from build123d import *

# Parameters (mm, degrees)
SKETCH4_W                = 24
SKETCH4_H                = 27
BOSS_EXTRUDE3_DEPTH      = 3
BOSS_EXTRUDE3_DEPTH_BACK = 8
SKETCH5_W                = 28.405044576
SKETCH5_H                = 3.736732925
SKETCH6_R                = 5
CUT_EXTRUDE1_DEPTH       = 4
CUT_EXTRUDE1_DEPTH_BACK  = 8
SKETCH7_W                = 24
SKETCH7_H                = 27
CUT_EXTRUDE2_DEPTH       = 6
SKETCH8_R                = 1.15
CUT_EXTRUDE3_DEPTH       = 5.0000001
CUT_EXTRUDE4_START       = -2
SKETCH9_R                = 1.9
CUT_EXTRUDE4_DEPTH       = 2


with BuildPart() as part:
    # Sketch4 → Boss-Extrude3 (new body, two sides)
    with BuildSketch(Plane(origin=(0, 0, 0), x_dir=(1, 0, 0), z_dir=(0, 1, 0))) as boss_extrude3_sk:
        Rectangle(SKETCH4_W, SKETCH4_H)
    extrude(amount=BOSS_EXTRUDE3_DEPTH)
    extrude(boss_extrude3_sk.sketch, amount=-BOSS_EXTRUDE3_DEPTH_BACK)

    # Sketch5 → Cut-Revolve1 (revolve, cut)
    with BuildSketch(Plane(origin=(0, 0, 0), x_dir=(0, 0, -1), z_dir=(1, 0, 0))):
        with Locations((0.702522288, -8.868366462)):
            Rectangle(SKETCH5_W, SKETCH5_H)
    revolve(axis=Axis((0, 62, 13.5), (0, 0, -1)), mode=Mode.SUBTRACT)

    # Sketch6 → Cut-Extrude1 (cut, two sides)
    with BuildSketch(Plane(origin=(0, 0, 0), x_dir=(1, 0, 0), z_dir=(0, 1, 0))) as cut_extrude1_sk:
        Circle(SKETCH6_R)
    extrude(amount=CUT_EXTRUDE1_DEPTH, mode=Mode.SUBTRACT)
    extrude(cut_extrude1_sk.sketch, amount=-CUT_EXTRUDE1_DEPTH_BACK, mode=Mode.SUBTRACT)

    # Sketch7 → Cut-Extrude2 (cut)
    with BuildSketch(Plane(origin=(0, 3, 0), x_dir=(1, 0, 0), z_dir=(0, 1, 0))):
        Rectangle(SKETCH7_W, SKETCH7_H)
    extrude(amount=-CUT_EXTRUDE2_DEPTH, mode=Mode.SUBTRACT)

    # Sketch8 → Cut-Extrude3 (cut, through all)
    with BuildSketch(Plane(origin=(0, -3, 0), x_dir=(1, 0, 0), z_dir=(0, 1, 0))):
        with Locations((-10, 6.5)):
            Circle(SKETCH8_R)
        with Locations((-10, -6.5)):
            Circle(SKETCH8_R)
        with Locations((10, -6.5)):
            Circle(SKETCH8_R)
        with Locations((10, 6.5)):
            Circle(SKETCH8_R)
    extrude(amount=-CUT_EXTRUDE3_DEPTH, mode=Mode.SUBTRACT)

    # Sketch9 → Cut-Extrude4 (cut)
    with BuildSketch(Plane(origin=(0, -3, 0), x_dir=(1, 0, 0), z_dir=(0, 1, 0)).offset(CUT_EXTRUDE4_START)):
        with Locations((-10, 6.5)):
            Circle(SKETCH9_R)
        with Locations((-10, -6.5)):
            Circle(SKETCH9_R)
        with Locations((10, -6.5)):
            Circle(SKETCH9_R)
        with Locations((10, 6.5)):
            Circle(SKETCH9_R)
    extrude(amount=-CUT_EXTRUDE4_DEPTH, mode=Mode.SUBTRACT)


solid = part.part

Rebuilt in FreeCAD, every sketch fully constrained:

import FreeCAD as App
import Part
import Sketcher

doc = App.newDocument("Part")
body = doc.addObject("PartDesign::Body", "Body")

# Sketch on XZ plane
sketch1 = body.newObject("Sketcher::SketchObject", "Sketch")
sketch1.AttachmentSupport = (doc.getObject("XZ_Plane"), [""])
sketch1.MapMode = "FlatFace"
sketch1.addGeometry([
    Part.LineSegment(App.Vector(-12, -14, 0), App.Vector(-12, 14, 0)),
    Part.LineSegment(App.Vector(-12, 14, 0), App.Vector(12, 14, 0)),
    Part.LineSegment(App.Vector(12, 14, 0), App.Vector(12, -14, 0)),
    Part.LineSegment(App.Vector(12, -14, 0), App.Vector(-12, -14, 0)),
], False)
sketch1.addConstraint([
    Sketcher.Constraint("Coincident", 0, 2, 1, 1),
    Sketcher.Constraint("Coincident", 1, 2, 2, 1),
    Sketcher.Constraint("Coincident", 2, 2, 3, 1),
    Sketcher.Constraint("Coincident", 3, 2, 0, 1),
    Sketcher.Constraint("Vertical", 0),
    Sketcher.Constraint("Horizontal", 1),
    Sketcher.Constraint("Vertical", 2),
    Sketcher.Constraint("Horizontal", 3),
    Sketcher.Constraint("Symmetric", 0, 2, 2, 2, -1, 1),
    Sketcher.Constraint("DistanceX", 1, 1, 1, 2, 24.0),
    Sketcher.Constraint("DistanceY", 0, 1, 0, 2, 27.0),
])
pad1 = body.newObject("PartDesign::Pad", "Pad")
pad1.Profile = sketch1
pad1.Type = "TwoLengths"
pad1.Length = 3
pad1.Length2 = 8
pad1.Reversed = True

# Sketch on YZ plane
sketch2 = body.newObject("Sketcher::SketchObject", "Sketch001")
sketch2.AttachmentSupport = (doc.getObject("YZ_Plane"), [""])
sketch2.MapMode = "FlatFace"
sketch2.addGeometry([
    Part.LineSegment(App.Vector(-7, 13.5, 0), App.Vector(-10.7, 13.5, 0)),
    Part.LineSegment(App.Vector(-10.7, 13.5, 0), App.Vector(-10.7, -14.9, 0)),
    Part.LineSegment(App.Vector(-10.7, -14.9, 0), App.Vector(-7, -14.9, 0)),
    Part.LineSegment(App.Vector(-7, -14.9, 0), App.Vector(-7, 13.5, 0)),
], False)
sketch2.addGeometry(Part.LineSegment(App.Vector(62, 13.5, 0), App.Vector(62, -14.9, 0)), True)  # axis
sketch2.addConstraint([
    Sketcher.Constraint("Coincident", 0, 2, 1, 1),
    Sketcher.Constraint("Coincident", 1, 2, 2, 1),
    Sketcher.Constraint("Coincident", 2, 2, 3, 1),
    Sketcher.Constraint("Coincident", 3, 2, 0, 1),
    Sketcher.Constraint("Horizontal", 0),
    Sketcher.Constraint("Vertical", 1),
    Sketcher.Constraint("Horizontal", 2),
    Sketcher.Constraint("Vertical", 3),
    Sketcher.Constraint("Vertical", 4),
    Sketcher.Constraint("Horizontal", 3, 2, 4, 1),
    Sketcher.Constraint("Horizontal", 2, 2, 4, 2),
    Sketcher.Constraint("DistanceX", 2, 2, -1, 1, 7.0),
    Sketcher.Constraint("DistanceX", -1, 1, 4, 1, 62.0),
    Sketcher.Constraint("DistanceY", -1, 1, 0, 2, 13.5),
    Sketcher.Constraint("DistanceX", 0, 2, 0, 1, 3.736733),
    Sketcher.Constraint("DistanceY", 1, 2, 1, 1, 28.405045),
])
groove = body.newObject("PartDesign::Groove", "Groove")
groove.Profile = sketch2
groove.ReferenceAxis = (sketch2, ["Axis0"])
groove.Angle = 360

# Sketch on XZ plane
sketch3 = body.newObject("Sketcher::SketchObject", "Sketch002")
sketch3.AttachmentSupport = (doc.getObject("XZ_Plane"), [""])
sketch3.MapMode = "FlatFace"
sketch3.addGeometry(Part.Circle(App.Vector(0, 0, 0), App.Vector(0, 0, 1), 5), False)
sketch3.addConstraint([
    Sketcher.Constraint("Coincident", 0, 3, -1, 1),
    Sketcher.Constraint("Diameter", 0, 10.0),
])
pocket1 = body.newObject("PartDesign::Pocket", "Pocket")
pocket1.Profile = sketch3
pocket1.Type = "ThroughAll"
pocket1.Midplane = True

# Sketch on XZ plane
sketch4 = body.newObject("Sketcher::SketchObject", "Sketch003")
sketch4.AttachmentSupport = (doc.getObject("XZ_Plane"), [""])
sketch4.MapMode = "FlatFace"
sketch4.AttachmentOffset = App.Placement(App.Vector(0, 0, -3), App.Rotation())
sketch4.addGeometry([
    Part.LineSegment(App.Vector(-12, -14, 0), App.Vector(-12, 14, 0)),
    Part.LineSegment(App.Vector(-12, 14, 0), App.Vector(12, 14, 0)),
    Part.LineSegment(App.Vector(12, 14, 0), App.Vector(12, -14, 0)),
    Part.LineSegment(App.Vector(12, -14, 0), App.Vector(-12, -14, 0)),
], False)
sketch4.addConstraint([
    Sketcher.Constraint("Coincident", 0, 2, 1, 1),
    Sketcher.Constraint("Coincident", 1, 2, 2, 1),
    Sketcher.Constraint("Coincident", 2, 2, 3, 1),
    Sketcher.Constraint("Coincident", 3, 2, 0, 1),
    Sketcher.Constraint("Vertical", 0),
    Sketcher.Constraint("Horizontal", 1),
    Sketcher.Constraint("Vertical", 2),
    Sketcher.Constraint("Horizontal", 3),
    Sketcher.Constraint("Symmetric", 0, 2, 2, 2, -1, 1),
    Sketcher.Constraint("DistanceX", 1, 1, 1, 2, 24.0),
    Sketcher.Constraint("DistanceY", 0, 1, 0, 2, 27.0),
])
pocket2 = body.newObject("PartDesign::Pocket", "Pocket001")
pocket2.Profile = sketch4
pocket2.Length = 6
pocket2.Reversed = True

# Sketch on XZ plane
sketch5 = body.newObject("Sketcher::SketchObject", "Sketch004")
sketch5.AttachmentSupport = (doc.getObject("XZ_Plane"), [""])
sketch5.MapMode = "FlatFace"
sketch5.AttachmentOffset = App.Placement(App.Vector(0, 0, 3), App.Rotation())
sketch5.addGeometry([
    Part.Circle(App.Vector(-10, -6.5, 0), App.Vector(0, 0, 1), 1.1),
    Part.Circle(App.Vector(-10, 6.5, 0), App.Vector(0, 0, 1), 1.1),
    Part.Circle(App.Vector(10, 6.5, 0), App.Vector(0, 0, 1), 1.1),
    Part.Circle(App.Vector(10, -6.5, 0), App.Vector(0, 0, 1), 1.1),
], False)
sketch5.addConstraint([
    Sketcher.Constraint("Equal", 0, 1),
    Sketcher.Constraint("Equal", 1, 2),
    Sketcher.Constraint("Equal", 2, 3),
    Sketcher.Constraint("Symmetric", 0, 3, 2, 3, -1, 1),
    Sketcher.Constraint("Symmetric", 1, 3, 3, 3, -1, 1),
    Sketcher.Constraint("Symmetric", 1, 3, 2, 3, -2),
    Sketcher.Constraint("Diameter", 0, 2.3),
    Sketcher.Constraint("DistanceX", 0, 3, -1, 1, 10.0),
    Sketcher.Constraint("DistanceY", 0, 3, 1, 3, 13.0),
])
pocket3 = body.newObject("PartDesign::Pocket", "Pocket002")
pocket3.Profile = sketch5
pocket3.Type = "ThroughAll"
pocket3.Reversed = True

# Sketch on XZ plane
sketch6 = body.newObject("Sketcher::SketchObject", "Sketch005")
sketch6.AttachmentSupport = (doc.getObject("XZ_Plane"), [""])
sketch6.MapMode = "FlatFace"
sketch6.AttachmentOffset = App.Placement(App.Vector(0, 0, 5), App.Rotation())
sketch6.addGeometry([
    Part.Circle(App.Vector(-10, -6.5, 0), App.Vector(0, 0, 1), 1.9),
    Part.Circle(App.Vector(-10, 6.5, 0), App.Vector(0, 0, 1), 1.9),
    Part.Circle(App.Vector(10, 6.5, 0), App.Vector(0, 0, 1), 1.9),
    Part.Circle(App.Vector(10, -6.5, 0), App.Vector(0, 0, 1), 1.9),
], False)
sketch6.addConstraint([
    Sketcher.Constraint("Equal", 0, 1),
    Sketcher.Constraint("Equal", 1, 2),
    Sketcher.Constraint("Equal", 2, 3),
    Sketcher.Constraint("Symmetric", 0, 3, 2, 3, -1, 1),
    Sketcher.Constraint("Symmetric", 1, 3, 3, 3, -1, 1),
    Sketcher.Constraint("Symmetric", 1, 3, 2, 3, -2),
    Sketcher.Constraint("Diameter", 0, 3.8),
    Sketcher.Constraint("DistanceX", 0, 3, -1, 1, 10.0),
    Sketcher.Constraint("DistanceY", 0, 3, 1, 3, 13.0),
])
pocket4 = body.newObject("PartDesign::Pocket", "Pocket003")
pocket4.Profile = sketch6
pocket4.Length = 2
pocket4.Reversed = True

doc.recompute()
